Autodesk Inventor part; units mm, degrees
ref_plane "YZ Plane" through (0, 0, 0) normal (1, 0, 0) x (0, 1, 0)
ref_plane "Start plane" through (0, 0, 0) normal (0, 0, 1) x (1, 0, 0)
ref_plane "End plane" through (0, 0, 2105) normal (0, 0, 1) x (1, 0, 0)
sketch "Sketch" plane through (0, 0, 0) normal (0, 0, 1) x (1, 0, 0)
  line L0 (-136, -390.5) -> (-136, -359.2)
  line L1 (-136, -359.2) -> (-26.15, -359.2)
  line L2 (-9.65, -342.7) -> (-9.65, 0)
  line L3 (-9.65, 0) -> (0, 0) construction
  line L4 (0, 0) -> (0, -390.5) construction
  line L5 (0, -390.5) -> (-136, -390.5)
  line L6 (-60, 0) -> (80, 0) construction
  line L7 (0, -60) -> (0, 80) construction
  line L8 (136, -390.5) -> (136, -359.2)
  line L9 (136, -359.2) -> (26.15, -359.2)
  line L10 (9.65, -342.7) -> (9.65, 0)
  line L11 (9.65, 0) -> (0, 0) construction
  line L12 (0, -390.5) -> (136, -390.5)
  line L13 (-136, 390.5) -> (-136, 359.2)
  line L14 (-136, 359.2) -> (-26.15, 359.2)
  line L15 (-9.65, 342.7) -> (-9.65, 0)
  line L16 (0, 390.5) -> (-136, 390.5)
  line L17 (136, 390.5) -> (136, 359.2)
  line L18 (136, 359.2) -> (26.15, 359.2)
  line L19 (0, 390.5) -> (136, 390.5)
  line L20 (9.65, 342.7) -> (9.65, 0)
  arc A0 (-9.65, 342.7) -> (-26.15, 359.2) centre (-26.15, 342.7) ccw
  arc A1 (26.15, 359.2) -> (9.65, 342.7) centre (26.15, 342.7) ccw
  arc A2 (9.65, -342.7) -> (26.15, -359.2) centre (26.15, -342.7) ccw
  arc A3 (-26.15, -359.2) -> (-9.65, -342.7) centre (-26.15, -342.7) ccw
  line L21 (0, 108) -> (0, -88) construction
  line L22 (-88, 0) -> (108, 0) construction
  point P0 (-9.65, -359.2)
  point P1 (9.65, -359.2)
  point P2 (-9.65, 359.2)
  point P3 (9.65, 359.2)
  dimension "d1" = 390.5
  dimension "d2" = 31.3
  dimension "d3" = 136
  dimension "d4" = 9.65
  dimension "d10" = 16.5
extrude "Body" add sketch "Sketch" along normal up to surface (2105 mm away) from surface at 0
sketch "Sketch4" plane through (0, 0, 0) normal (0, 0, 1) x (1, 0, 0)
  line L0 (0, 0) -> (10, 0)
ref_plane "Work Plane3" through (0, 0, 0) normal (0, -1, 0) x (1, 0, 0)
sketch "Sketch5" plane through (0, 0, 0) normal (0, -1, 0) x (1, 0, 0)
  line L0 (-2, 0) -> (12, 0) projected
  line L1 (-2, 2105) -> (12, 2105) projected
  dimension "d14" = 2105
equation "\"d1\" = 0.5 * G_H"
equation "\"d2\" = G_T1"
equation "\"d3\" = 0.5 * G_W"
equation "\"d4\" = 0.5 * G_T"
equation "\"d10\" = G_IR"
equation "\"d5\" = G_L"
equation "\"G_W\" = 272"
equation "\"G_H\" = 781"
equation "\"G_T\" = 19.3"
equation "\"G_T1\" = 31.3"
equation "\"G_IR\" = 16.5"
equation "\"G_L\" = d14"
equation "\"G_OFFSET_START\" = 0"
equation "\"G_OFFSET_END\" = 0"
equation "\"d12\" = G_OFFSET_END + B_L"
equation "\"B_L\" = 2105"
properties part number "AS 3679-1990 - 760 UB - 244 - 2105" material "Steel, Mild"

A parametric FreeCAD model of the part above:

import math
import FreeCAD as App
import Part
import Sketcher
from FreeCAD import Vector

doc = App.newDocument("Part")
params = doc.addObject("Spreadsheet::Sheet", "Params")
for row, (alias, value) in enumerate([
    ("sketch1_radius", "16.5 mm"),
    ("sketch1_height", "31.3 mm"),
    ("pad1_length", "2105 mm"),
], start=1):
    params.set(f"A{row}", alias)
    params.set(f"B{row}", "=" + value)
    params.setAlias(f"B{row}", alias)

body = doc.addObject("PartDesign::Body", "Body")

sketch1 = body.newObject("Sketcher::SketchObject", "Sketch")
sketch1.AttachmentSupport = (doc.getObject("XY_Plane"), [""])
sketch1.MapMode = "FlatFace"
sketch1.addGeometry(Part.LineSegment(Vector(-136, -359, 0), Vector(-136, -390, 0)), False)
sketch1.addGeometry(Part.LineSegment(Vector(-136, -390, 0), Vector(136, -390, 0)), False)
sketch1.addGeometry(Part.LineSegment(Vector(136, -390, 0), Vector(136, -359, 0)), False)
sketch1.addGeometry(Part.LineSegment(Vector(136, -359, 0), Vector(26, -359, 0)), False)
sketch1.addGeometry(Part.ArcOfCircle(Part.Circle(Vector(26, -343, 0), Vector(0, 0, 1), 16), math.radians(180), math.radians(270)), False)
sketch1.addGeometry(Part.LineSegment(Vector(10, -343, 0), Vector(10, 343, 0)), False)
sketch1.addGeometry(Part.ArcOfCircle(Part.Circle(Vector(26, 343, 0), Vector(0, 0, 1), 16), math.radians(90), math.radians(180)), False)
sketch1.addGeometry(Part.LineSegment(Vector(26, 359, 0), Vector(136, 359, 0)), False)
sketch1.addGeometry(Part.LineSegment(Vector(136, 359, 0), Vector(136, 390, 0)), False)
sketch1.addGeometry(Part.LineSegment(Vector(136, 390, 0), Vector(-136, 390, 0)), False)
sketch1.addGeometry(Part.LineSegment(Vector(-136, 390, 0), Vector(-136, 359, 0)), False)
sketch1.addGeometry(Part.LineSegment(Vector(-136, 359, 0), Vector(-26, 359, 0)), False)
sketch1.addGeometry(Part.ArcOfCircle(Part.Circle(Vector(-26, 343, 0), Vector(0, 0, 1), 16), math.radians(0), math.radians(90)), False)
sketch1.addGeometry(Part.LineSegment(Vector(-10, 343, 0), Vector(-10, -343, 0)), False)
sketch1.addGeometry(Part.ArcOfCircle(Part.Circle(Vector(-26, -343, 0), Vector(0, 0, 1), 16), math.radians(-90), math.radians(0)), False)
sketch1.addGeometry(Part.LineSegment(Vector(-26, -359, 0), Vector(-136, -359, 0)), False)
sketch1.addConstraint(Sketcher.Constraint("Coincident", 0, 2, 1, 1))
sketch1.addConstraint(Sketcher.Constraint("Coincident", 1, 2, 2, 1))
sketch1.addConstraint(Sketcher.Constraint("Coincident", 2, 2, 3, 1))
sketch1.addConstraint(Sketcher.Constraint("Tangent", 3, 2, 4, 2))
sketch1.addConstraint(Sketcher.Constraint("Tangent", 4, 1, 5, 1))
sketch1.addConstraint(Sketcher.Constraint("Tangent", 5, 2, 6, 2))
sketch1.addConstraint(Sketcher.Constraint("Tangent", 6, 1, 7, 1))
sketch1.addConstraint(Sketcher.Constraint("Coincident", 7, 2, 8, 1))
sketch1.addConstraint(Sketcher.Constraint("Coincident", 8, 2, 9, 1))
sketch1.addConstraint(Sketcher.Constraint("Coincident", 9, 2, 10, 1))
sketch1.addConstraint(Sketcher.Constraint("Coincident", 10, 2, 11, 1))
sketch1.addConstraint(Sketcher.Constraint("Tangent", 11, 2, 12, 2))
sketch1.addConstraint(Sketcher.Constraint("Tangent", 12, 1, 13, 1))
sketch1.addConstraint(Sketcher.Constraint("Tangent", 13, 2, 14, 2))
sketch1.addConstraint(Sketcher.Constraint("Tangent", 14, 1, 15, 1))
sketch1.addConstraint(Sketcher.Constraint("Coincident", 15, 2, 0, 1))
sketch1.addConstraint(Sketcher.Constraint("Vertical", 0))
sketch1.addConstraint(Sketcher.Constraint("Horizontal", 1))
sketch1.addConstraint(Sketcher.Constraint("Vertical", 2))
sketch1.addConstraint(Sketcher.Constraint("Horizontal", 3))
sketch1.addConstraint(Sketcher.Constraint("Vertical", 5))
sketch1.addConstraint(Sketcher.Constraint("Horizontal", 7))
sketch1.addConstraint(Sketcher.Constraint("Vertical", 8))
sketch1.addConstraint(Sketcher.Constraint("Horizontal", 9))
sketch1.addConstraint(Sketcher.Constraint("Vertical", 10))
sketch1.addConstraint(Sketcher.Constraint("Horizontal", 11))
sketch1.addConstraint(Sketcher.Constraint("Vertical", 13))
sketch1.addConstraint(Sketcher.Constraint("Horizontal", 15))
sketch1.addConstraint(Sketcher.Constraint("Equal", 4, 6))
sketch1.addConstraint(Sketcher.Constraint("Equal", 6, 12))
sketch1.addConstraint(Sketcher.Constraint("Equal", 12, 14))
sketch1.addConstraint(Sketcher.Constraint("Symmetric", 4, 3, 12, 3, -1, 1))
sketch1.addConstraint(Sketcher.Constraint("Symmetric", 0, 2, 8, 2, -1, 1))
sketch1.addConstraint(Sketcher.Constraint("Symmetric", 7, 2, 10, 2, -2))
sketch1.addConstraint(Sketcher.Constraint("Symmetric", 2, 2, 15, 2, -2))
sketch1.addConstraint(Sketcher.Constraint("Radius", 4, 16.5))
sketch1.addConstraint(Sketcher.Constraint("DistanceY", 0, 2, 0, 1, 31.3))
sketch1.addConstraint(Sketcher.Constraint("DistanceX", 0, 2, -1, 1, 136.0))
sketch1.addConstraint(Sketcher.Constraint("DistanceY", 0, 2, -1, 1, 390.5))
sketch1.addConstraint(Sketcher.Constraint("DistanceX", -1, 1, 4, 1, 9.65))
sketch1.setExpression("Constraints[35]", "Params.sketch1_radius")
sketch1.setExpression("Constraints[36]", "Params.sketch1_height")
pad1 = body.newObject("PartDesign::Pad", "Pad")
pad1.Profile = sketch1
pad1.setExpression("Length", "Params.pad1_length")

doc.recompute()
